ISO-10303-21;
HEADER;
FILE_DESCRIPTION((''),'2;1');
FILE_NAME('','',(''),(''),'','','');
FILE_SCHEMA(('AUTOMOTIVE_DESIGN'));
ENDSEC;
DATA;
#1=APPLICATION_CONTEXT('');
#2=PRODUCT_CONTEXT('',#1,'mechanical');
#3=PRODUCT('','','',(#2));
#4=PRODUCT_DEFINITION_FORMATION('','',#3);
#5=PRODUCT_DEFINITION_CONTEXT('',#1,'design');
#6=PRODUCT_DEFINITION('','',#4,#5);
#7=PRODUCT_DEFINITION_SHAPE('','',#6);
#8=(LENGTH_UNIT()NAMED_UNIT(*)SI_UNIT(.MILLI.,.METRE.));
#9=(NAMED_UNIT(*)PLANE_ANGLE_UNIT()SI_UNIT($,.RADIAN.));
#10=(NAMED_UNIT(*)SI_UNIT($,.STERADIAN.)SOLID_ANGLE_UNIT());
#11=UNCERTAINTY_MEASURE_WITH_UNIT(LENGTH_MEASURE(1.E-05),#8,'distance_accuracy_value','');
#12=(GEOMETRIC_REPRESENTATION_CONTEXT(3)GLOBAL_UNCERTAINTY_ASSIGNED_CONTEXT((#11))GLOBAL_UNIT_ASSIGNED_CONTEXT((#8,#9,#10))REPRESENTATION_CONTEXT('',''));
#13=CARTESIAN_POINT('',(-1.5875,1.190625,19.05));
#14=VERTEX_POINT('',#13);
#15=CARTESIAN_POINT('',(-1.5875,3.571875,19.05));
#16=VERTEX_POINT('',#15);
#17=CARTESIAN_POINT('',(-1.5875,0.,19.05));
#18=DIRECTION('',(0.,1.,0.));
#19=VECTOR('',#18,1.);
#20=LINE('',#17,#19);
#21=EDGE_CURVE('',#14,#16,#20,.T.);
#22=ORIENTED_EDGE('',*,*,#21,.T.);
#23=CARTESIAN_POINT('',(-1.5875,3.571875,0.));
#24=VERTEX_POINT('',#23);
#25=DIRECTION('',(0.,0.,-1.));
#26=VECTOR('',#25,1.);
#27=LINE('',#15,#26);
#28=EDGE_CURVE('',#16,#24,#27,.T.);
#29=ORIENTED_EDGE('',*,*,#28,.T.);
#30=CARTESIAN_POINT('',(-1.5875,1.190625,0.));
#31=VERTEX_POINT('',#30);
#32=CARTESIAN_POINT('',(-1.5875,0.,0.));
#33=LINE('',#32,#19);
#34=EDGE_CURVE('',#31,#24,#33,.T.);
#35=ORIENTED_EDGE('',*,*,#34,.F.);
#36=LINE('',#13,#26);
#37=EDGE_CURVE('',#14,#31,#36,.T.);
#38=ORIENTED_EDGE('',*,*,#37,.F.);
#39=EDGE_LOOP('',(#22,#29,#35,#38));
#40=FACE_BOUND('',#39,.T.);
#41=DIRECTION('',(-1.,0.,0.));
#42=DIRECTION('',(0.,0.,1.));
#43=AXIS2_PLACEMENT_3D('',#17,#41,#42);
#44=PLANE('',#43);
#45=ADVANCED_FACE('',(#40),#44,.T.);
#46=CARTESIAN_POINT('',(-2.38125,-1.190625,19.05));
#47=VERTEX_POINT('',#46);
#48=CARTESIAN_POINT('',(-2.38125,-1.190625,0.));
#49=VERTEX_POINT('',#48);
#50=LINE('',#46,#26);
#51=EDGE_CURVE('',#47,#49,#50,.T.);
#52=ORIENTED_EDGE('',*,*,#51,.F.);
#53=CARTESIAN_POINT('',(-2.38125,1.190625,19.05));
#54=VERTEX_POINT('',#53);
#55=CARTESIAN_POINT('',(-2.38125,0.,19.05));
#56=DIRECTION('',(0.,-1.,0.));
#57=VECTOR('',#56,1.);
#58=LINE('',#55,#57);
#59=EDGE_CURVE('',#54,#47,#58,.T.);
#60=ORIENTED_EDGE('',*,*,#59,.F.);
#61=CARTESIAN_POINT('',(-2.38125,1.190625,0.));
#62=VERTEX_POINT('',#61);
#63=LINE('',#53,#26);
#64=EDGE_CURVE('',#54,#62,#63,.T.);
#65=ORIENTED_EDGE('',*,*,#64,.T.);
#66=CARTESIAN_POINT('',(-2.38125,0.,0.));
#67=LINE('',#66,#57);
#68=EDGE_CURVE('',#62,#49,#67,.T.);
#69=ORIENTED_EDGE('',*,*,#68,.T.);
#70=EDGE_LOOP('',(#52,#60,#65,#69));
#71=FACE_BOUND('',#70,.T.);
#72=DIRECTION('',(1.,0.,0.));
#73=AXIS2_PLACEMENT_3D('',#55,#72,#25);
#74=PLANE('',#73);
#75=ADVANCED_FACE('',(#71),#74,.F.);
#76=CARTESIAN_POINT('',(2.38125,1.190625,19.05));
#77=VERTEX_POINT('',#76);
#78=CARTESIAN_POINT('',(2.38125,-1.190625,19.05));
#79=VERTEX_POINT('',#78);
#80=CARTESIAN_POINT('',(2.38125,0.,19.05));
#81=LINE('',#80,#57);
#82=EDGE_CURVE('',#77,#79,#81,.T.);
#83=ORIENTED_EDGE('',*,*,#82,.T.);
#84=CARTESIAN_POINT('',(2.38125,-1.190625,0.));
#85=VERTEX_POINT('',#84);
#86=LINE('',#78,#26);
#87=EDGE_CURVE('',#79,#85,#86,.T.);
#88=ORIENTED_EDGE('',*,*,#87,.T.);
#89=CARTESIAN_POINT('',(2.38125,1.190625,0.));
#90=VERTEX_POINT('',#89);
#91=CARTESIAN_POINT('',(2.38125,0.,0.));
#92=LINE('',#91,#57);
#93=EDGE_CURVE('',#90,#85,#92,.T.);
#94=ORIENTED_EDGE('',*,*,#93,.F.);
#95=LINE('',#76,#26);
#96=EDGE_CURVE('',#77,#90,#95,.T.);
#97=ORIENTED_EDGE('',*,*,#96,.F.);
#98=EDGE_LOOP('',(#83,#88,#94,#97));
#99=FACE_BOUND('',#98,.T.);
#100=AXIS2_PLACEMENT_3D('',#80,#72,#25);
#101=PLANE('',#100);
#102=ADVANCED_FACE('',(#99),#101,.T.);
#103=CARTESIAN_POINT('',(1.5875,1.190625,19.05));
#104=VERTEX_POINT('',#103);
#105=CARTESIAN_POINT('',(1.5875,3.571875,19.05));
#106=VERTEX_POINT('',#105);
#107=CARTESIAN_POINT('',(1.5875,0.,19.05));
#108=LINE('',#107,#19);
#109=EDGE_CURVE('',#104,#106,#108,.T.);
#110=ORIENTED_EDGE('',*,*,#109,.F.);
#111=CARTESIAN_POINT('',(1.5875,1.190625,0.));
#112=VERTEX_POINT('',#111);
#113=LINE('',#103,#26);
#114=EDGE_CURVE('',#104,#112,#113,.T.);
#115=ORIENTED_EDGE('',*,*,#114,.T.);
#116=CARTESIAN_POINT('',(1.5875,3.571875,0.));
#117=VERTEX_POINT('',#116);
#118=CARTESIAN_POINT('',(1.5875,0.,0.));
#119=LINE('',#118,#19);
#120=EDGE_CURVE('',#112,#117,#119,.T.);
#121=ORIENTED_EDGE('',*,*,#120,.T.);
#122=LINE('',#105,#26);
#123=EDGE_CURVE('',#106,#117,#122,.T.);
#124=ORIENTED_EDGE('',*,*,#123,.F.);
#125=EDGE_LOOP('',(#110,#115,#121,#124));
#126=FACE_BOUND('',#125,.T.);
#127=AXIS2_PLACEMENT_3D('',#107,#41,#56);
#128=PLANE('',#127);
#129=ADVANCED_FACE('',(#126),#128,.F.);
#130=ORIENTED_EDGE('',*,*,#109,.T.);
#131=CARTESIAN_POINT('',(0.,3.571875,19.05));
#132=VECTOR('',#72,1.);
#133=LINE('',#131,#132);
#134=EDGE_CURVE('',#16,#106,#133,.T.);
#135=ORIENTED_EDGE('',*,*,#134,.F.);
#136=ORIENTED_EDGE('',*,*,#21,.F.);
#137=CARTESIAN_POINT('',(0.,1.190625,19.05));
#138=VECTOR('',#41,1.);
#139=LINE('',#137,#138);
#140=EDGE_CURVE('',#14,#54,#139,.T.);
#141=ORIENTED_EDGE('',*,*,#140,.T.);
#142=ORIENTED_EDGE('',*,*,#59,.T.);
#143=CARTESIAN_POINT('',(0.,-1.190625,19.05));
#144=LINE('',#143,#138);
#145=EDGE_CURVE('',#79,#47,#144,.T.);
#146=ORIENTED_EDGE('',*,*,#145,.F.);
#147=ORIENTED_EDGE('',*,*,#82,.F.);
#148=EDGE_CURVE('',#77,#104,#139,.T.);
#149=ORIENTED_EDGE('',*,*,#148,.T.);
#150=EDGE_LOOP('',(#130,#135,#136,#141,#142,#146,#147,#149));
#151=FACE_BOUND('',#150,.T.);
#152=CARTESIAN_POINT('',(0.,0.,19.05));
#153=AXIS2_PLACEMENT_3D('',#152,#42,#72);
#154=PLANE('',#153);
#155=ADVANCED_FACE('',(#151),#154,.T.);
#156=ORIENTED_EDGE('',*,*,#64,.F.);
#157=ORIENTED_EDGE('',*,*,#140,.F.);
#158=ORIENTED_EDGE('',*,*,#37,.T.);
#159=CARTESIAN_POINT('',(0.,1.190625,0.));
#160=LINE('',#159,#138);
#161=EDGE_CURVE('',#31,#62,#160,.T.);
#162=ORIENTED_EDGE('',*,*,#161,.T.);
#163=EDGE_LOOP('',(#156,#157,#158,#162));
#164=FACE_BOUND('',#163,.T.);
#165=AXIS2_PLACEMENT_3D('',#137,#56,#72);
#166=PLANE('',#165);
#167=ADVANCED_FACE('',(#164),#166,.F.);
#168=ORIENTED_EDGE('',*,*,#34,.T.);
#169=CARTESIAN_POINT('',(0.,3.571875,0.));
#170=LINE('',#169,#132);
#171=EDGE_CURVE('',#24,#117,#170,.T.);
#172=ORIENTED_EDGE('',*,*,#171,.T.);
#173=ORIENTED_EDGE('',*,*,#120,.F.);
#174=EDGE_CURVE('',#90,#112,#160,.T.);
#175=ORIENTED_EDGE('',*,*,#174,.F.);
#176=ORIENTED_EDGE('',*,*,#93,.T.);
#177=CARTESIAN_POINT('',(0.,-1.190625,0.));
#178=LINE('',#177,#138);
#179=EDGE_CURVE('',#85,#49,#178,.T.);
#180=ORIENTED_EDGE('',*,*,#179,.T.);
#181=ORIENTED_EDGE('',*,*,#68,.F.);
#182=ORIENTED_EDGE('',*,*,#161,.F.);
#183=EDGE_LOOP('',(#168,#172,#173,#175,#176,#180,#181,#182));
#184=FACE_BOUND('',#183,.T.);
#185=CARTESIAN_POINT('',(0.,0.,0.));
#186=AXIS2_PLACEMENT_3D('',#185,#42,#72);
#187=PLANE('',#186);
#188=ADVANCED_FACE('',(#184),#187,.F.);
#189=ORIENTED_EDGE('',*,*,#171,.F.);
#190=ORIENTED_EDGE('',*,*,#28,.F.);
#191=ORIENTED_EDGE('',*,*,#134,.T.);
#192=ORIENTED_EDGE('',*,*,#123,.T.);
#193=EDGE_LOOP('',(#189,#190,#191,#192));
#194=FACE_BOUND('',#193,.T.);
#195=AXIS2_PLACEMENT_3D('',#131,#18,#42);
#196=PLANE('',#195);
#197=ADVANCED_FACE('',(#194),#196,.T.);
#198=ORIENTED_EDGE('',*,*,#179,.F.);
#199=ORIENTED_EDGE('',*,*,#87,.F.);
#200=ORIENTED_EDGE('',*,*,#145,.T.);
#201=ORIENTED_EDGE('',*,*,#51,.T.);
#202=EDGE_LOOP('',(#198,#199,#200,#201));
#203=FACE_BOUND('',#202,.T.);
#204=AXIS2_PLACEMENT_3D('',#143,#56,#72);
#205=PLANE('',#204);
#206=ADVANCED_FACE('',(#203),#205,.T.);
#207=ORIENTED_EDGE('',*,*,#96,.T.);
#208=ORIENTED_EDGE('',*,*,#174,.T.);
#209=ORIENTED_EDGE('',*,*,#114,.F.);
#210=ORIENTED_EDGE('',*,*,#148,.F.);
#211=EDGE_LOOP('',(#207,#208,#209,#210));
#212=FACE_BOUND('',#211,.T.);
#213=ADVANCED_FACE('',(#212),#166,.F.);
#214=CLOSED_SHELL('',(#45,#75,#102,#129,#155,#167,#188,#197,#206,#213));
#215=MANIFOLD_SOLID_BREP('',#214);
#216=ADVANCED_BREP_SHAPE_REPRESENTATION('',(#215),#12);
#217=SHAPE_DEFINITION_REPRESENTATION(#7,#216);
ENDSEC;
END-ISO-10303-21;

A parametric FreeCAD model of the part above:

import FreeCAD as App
import Part
import Sketcher
Q = App.Units.Quantity


def add_polygon(sketch, points):
    """Adds a closed chain of lines whose ends are joined by coincident constraints."""
    first, n = sketch.GeometryCount, len(points)
    for a, b in zip(points, points[1:] + points[:1]):
        sketch.addGeometry(Part.LineSegment(App.Vector(*a, 0), App.Vector(*b, 0)), False)
    for i in range(n):
        sketch.addConstraint(Sketcher.Constraint("Coincident", first + i, 2, first + (i + 1) % n, 1))

doc = App.newDocument("Part")
body = doc.addObject("PartDesign::Body", "Body")

# Sketch on XY plane
sketch1 = doc.addObject("Sketcher::SketchObject", "Sketch")
body.addObject(sketch1)
sketch1.AttachmentSupport = (doc.XY_Plane, [""])
sketch1.MapMode = "FlatFace"
add_polygon(sketch1, [(-2.4, 1.2), (-2.4, -1.2), (2.4, -1.2), (2.4, 1.2), (1.6, 1.2), (1.6, 3.6), (-1.6, 3.6), (-1.6, 1.2)])  # lines 0-7
sketch1.addConstraint([
    Sketcher.Constraint("Vertical", 0),
    Sketcher.Constraint("Horizontal", 1),
    Sketcher.Constraint("Vertical", 2),
    Sketcher.Constraint("Horizontal", 3),
    Sketcher.Constraint("Vertical", 4),
    Sketcher.Constraint("Horizontal", 5),
    Sketcher.Constraint("Vertical", 6),
    Sketcher.Constraint("Horizontal", 7),
    Sketcher.Constraint("Symmetric", 0, 2, 2, 2, -1, 1),
    Sketcher.Constraint("Symmetric", 3, 2, 6, 2, -2),
    Sketcher.Constraint("Equal", 2, 4),
    Sketcher.Constraint("DistanceX", 1, 1, 1, 2, Q("0.1875 in")),
    Sketcher.Constraint("DistanceX", 3, 2, 3, 1, Q("0.03125 in")),
    Sketcher.Constraint("DistanceY", 0, 2, 0, 1, Q("0.09375 in")),
])
pad1 = doc.addObject("PartDesign::Pad", "Pad")
body.addObject(pad1)
pad1.Profile = sketch1
pad1.Length = Q("0.75 in")

doc.recompute()
